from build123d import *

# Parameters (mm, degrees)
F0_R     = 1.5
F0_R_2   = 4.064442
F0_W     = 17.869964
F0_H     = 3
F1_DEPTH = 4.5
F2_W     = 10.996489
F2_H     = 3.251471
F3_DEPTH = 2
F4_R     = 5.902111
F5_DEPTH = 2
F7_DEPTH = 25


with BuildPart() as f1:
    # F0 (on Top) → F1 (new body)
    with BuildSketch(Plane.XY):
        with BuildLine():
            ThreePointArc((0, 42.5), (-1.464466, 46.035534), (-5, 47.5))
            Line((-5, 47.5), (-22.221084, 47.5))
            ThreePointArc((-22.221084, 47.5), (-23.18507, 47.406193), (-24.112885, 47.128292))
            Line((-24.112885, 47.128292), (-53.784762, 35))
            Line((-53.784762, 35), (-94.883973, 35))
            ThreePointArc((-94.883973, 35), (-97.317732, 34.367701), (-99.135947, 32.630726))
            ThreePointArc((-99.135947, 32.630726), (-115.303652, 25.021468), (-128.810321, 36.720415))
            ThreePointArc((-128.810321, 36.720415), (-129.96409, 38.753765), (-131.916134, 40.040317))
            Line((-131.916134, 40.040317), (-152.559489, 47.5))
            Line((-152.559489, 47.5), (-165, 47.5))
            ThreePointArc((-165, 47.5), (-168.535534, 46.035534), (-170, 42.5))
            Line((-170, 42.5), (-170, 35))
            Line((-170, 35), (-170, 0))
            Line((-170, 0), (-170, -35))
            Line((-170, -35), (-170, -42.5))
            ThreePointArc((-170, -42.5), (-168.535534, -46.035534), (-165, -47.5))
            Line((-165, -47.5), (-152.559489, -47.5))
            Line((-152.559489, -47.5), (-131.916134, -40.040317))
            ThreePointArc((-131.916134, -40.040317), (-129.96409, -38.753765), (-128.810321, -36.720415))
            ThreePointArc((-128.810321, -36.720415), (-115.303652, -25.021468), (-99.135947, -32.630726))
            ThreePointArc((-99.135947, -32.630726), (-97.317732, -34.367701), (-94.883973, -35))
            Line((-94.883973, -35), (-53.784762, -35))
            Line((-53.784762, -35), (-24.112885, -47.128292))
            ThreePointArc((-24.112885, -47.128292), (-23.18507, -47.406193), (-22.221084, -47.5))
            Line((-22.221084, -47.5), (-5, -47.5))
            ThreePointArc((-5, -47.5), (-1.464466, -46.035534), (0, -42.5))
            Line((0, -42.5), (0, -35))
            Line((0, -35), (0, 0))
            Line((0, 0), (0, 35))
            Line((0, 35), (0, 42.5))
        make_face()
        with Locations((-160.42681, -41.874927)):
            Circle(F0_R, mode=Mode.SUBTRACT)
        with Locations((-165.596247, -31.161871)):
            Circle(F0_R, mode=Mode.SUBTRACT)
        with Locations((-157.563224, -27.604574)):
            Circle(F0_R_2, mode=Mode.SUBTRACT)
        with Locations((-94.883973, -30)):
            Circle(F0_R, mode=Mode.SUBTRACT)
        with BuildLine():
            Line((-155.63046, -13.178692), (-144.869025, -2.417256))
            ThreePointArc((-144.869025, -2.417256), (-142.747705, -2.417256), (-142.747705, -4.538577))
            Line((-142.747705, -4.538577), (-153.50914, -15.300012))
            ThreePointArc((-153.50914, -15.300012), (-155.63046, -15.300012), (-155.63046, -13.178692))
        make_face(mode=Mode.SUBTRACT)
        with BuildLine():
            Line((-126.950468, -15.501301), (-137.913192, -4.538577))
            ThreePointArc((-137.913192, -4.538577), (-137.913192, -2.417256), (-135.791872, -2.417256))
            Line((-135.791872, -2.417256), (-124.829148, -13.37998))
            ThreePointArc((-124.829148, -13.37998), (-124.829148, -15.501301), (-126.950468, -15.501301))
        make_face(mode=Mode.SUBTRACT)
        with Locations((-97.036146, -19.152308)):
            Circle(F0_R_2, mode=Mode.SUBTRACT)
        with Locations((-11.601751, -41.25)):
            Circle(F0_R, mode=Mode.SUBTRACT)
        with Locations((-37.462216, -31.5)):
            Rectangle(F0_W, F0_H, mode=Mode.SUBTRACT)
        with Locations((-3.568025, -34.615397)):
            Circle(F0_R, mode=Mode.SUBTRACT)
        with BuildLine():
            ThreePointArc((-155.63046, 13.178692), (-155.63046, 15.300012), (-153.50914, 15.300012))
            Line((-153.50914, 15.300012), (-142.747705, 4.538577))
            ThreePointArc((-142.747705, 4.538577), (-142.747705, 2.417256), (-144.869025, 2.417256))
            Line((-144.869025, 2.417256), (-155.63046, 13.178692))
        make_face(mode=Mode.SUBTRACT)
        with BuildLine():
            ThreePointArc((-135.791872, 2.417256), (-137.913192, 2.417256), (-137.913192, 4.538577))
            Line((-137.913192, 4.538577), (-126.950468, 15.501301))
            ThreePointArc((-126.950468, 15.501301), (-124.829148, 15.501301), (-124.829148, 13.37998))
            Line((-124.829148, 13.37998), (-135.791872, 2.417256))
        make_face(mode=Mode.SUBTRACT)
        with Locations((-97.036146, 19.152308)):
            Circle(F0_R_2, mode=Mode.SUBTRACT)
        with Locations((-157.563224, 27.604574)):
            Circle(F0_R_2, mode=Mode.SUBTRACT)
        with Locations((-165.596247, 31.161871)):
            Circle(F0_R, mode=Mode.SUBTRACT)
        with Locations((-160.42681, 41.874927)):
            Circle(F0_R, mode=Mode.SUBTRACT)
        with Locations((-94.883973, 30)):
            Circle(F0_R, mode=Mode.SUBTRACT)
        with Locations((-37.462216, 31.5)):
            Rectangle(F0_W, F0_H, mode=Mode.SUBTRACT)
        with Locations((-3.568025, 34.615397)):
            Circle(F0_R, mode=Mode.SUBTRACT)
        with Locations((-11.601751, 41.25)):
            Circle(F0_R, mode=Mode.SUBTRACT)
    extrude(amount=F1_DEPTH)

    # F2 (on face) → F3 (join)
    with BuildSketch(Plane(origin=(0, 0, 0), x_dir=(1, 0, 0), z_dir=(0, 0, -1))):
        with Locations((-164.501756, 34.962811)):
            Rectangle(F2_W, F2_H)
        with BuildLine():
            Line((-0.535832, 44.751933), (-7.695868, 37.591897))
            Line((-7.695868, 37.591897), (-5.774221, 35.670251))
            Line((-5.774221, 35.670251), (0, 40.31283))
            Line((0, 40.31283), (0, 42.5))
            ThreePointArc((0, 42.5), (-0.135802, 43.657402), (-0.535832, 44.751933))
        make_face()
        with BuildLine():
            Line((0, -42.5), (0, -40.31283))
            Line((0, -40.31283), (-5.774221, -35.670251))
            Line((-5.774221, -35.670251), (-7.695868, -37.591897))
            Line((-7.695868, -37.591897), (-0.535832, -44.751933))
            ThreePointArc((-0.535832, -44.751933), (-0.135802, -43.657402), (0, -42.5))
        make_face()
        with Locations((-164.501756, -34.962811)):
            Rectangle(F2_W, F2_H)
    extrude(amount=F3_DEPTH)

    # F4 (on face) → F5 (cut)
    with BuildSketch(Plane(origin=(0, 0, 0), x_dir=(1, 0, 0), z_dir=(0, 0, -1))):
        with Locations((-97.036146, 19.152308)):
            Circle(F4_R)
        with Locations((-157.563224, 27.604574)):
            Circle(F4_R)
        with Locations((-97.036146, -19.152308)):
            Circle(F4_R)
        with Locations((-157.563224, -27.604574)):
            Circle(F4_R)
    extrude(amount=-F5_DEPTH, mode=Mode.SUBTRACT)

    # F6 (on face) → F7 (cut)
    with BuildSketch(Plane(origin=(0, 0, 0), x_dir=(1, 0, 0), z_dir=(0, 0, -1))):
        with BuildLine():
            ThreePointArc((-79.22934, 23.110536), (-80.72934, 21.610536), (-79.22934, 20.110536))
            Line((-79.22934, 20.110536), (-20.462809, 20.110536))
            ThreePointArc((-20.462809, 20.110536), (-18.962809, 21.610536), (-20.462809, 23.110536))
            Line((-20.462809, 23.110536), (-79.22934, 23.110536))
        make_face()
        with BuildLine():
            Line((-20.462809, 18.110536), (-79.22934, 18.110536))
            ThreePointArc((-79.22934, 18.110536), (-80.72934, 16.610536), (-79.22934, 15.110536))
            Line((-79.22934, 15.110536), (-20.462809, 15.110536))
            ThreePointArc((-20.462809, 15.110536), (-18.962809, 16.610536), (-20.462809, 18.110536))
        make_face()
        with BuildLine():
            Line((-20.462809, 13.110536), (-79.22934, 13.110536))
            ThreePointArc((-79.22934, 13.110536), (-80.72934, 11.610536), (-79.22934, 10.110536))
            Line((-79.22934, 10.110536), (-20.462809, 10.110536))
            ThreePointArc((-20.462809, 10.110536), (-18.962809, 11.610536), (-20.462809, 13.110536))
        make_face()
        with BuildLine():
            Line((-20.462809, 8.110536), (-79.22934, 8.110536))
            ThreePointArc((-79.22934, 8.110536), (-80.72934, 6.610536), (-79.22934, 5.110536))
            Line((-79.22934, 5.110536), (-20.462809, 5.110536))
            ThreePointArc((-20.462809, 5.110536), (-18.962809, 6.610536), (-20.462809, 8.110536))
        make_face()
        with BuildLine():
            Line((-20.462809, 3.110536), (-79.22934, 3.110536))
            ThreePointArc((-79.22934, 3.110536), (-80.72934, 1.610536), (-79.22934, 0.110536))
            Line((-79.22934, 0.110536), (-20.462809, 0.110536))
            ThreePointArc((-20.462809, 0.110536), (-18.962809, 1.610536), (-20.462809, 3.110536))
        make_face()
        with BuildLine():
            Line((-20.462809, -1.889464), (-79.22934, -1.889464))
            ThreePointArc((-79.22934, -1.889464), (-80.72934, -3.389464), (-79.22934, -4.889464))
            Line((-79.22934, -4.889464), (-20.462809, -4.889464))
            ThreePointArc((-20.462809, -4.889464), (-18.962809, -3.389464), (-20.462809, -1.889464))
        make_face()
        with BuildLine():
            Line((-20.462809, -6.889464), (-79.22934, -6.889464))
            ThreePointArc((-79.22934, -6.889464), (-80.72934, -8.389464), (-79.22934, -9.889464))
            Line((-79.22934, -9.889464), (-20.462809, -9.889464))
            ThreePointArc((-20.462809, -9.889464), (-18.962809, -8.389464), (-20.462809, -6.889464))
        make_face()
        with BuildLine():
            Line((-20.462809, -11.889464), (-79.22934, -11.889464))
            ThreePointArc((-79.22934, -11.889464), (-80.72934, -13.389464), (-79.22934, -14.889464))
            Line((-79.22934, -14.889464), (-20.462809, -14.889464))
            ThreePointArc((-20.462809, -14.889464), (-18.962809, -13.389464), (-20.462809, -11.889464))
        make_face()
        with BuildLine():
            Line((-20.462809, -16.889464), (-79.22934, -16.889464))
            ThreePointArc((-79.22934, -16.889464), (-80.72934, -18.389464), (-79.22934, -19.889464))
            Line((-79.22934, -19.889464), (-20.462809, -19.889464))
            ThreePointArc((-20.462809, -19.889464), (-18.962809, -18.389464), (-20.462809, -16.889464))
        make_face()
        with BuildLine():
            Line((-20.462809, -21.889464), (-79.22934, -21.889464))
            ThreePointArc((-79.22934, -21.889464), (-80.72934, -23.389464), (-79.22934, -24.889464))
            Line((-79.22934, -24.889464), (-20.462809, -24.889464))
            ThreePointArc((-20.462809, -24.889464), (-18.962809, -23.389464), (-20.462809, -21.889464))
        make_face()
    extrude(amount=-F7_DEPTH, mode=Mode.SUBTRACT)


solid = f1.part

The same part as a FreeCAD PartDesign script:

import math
import FreeCAD as App
import Part
import Sketcher

V = App.Vector


def add_polygon(sketch, points):
    """Adds a closed chain of lines whose ends are joined by coincident constraints."""
    first, n = sketch.GeometryCount, len(points)
    for a, b in zip(points, points[1:] + points[:1]):
        sketch.addGeometry(Part.LineSegment(App.Vector(*a, 0), App.Vector(*b, 0)), False)
    for i in range(n):
        sketch.addConstraint(Sketcher.Constraint("Coincident", first + i, 2, first + (i + 1) % n, 1))

doc = App.newDocument("Part")
body = doc.addObject("PartDesign::Body", "Body")

sketch1 = doc.addObject("Sketcher::SketchObject", "Sketch")
body.addObject(sketch1)
sketch1.AttachmentSupport = (doc.XY_Plane, [""])
sketch1.MapMode = "FlatFace"
sketch1.addGeometry(Part.ArcOfCircle(Part.Circle(V(-5, 42.5, 0), V(0, 0, 1), 5), math.radians(0), math.radians(90)), False)
sketch1.addGeometry(Part.LineSegment(V(-5, 47.5, 0), V(-22.2, 47.5, 0)), False)
sketch1.addGeometry(Part.ArcOfCircle(Part.Circle(V(-22.2, 42.5, 0), V(0, 0, 1), 5), math.radians(90), math.radians(112)), False)
sketch1.addGeometry(Part.LineSegment(V(-24.1, 47.1, 0), V(-53.8, 35, 0)), False)
sketch1.addGeometry(Part.LineSegment(V(-53.8, 35, 0), V(-94.9, 35, 0)), False)
sketch1.addGeometry(Part.ArcOfCircle(Part.Circle(V(-94.9, 30, 0), V(0, 0, 1), 5), math.radians(90), math.radians(148)), False)
sketch1.addGeometry(Part.ArcOfCircle(Part.Circle(V(-113.1, 41.2, 0), V(0, 0, 1), 16.4), math.radians(-164), math.radians(-32)), False)
sketch1.addGeometry(Part.ArcOfCircle(Part.Circle(V(-133.6, 35.3, 0), V(0, 0, 1), 5), math.radians(16), math.radians(70)), False)
sketch1.addGeometry(Part.LineSegment(V(-131.9, 40, 0), V(-152.6, 47.5, 0)), False)
sketch1.addGeometry(Part.LineSegment(V(-152.6, 47.5, 0), V(-165, 47.5, 0)), False)
sketch1.addGeometry(Part.ArcOfCircle(Part.Circle(V(-165, 42.5, 0), V(0, 0, 1), 5), math.radians(90), math.radians(180)), False)
sketch1.addGeometry(Part.LineSegment(V(-170, 42.5, 0), V(-170, -42.5, 0)), False)
sketch1.addGeometry(Part.ArcOfCircle(Part.Circle(V(-165, -42.5, 0), V(0, 0, 1), 5), math.radians(180), math.radians(270)), False)
sketch1.addGeometry(Part.LineSegment(V(-165, -47.5, 0), V(-152.6, -47.5, 0)), False)
sketch1.addGeometry(Part.LineSegment(V(-152.6, -47.5, 0), V(-131.9, -40, 0)), False)
sketch1.addGeometry(Part.ArcOfCircle(Part.Circle(V(-133.6, -35.3, 0), V(0, 0, 1), 5), math.radians(-70), math.radians(-16)), False)
sketch1.addGeometry(Part.ArcOfCircle(Part.Circle(V(-113.1, -41.2, 0), V(0, 0, 1), 16.4), math.radians(32), math.radians(164)), False)
sketch1.addGeometry(Part.ArcOfCircle(Part.Circle(V(-94.9, -30, 0), V(0, 0, 1), 5), math.radians(-148), math.radians(-90)), False)
sketch1.addGeometry(Part.LineSegment(V(-94.9, -35, 0), V(-53.8, -35, 0)), False)
sketch1.addGeometry(Part.LineSegment(V(-53.8, -35, 0), V(-24.1, -47.1, 0)), False)
sketch1.addGeometry(Part.ArcOfCircle(Part.Circle(V(-22.2, -42.5, 0), V(0, 0, 1), 5), math.radians(-112), math.radians(-90)), False)
sketch1.addGeometry(Part.LineSegment(V(-22.2, -47.5, 0), V(-5, -47.5, 0)), False)
sketch1.addGeometry(Part.ArcOfCircle(Part.Circle(V(-5, -42.5, 0), V(0, 0, 1), 5), math.radians(-90), math.radians(0)), False)
sketch1.addGeometry(Part.LineSegment(V(0, -42.5, 0), V(0, 42.5, 0)), False)
sketch1.addGeometry(Part.Circle(V(-160.4, -41.9, 0), V(0, 0, 1), 1.5), False)
sketch1.addGeometry(Part.Circle(V(-165.6, -31.2, 0), V(0, 0, 1), 1.5), False)
sketch1.addGeometry(Part.Circle(V(-157.6, -27.6, 0), V(0, 0, 1), 4.1), False)
sketch1.addGeometry(Part.Circle(V(-94.9, -30, 0), V(0, 0, 1), 1.5), False)
sketch1.addGeometry(Part.ArcOfCircle(Part.Circle(V(-154.6, -14.2, 0), V(0, 0, 1), 1.5), math.radians(135), math.radians(315)), False)
sketch1.addGeometry(Part.LineSegment(V(-155.6, -13.2, 0), V(-144.9, -2.4, 0)), False)
sketch1.addGeometry(Part.ArcOfCircle(Part.Circle(V(-143.8, -3.5, 0), V(0, 0, 1), 1.5), math.radians(-45), math.radians(135)), False)
sketch1.addGeometry(Part.LineSegment(V(-142.7, -4.5, 0), V(-153.5, -15.3, 0)), False)
sketch1.addGeometry(Part.ArcOfCircle(Part.Circle(V(-125.9, -14.4, 0), V(0, 0, 1), 1.5), math.radians(-135), math.radians(45)), False)
sketch1.addGeometry(Part.LineSegment(V(-127, -15.5, 0), V(-137.9, -4.5, 0)), False)
sketch1.addGeometry(Part.ArcOfCircle(Part.Circle(V(-136.9, -3.5, 0), V(0, 0, 1), 1.5), math.radians(45), math.radians(225)), False)
sketch1.addGeometry(Part.LineSegment(V(-135.8, -2.4, 0), V(-124.8, -13.4, 0)), False)
sketch1.addGeometry(Part.Circle(V(-97, -19.2, 0), V(0, 0, 1), 4.1), False)
sketch1.addGeometry(Part.Circle(V(-11.6, -41.2, 0), V(0, 0, 1), 1.5), False)
sketch1.addGeometry(Part.Circle(V(-3.6, -34.6, 0), V(0, 0, 1), 1.5), False)
add_polygon(sketch1, [(-28.5, -33), (-46.4, -33), (-46.4, -30), (-28.5, -30)])
sketch1.addGeometry(Part.LineSegment(V(-144.9, 2.4, 0), V(-155.6, 13.2, 0)), False)
sketch1.addGeometry(Part.ArcOfCircle(Part.Circle(V(-154.6, 14.2, 0), V(0, 0, 1), 1.5), math.radians(45), math.radians(225)), False)
sketch1.addGeometry(Part.LineSegment(V(-153.5, 15.3, 0), V(-142.7, 4.5, 0)), False)
sketch1.addGeometry(Part.ArcOfCircle(Part.Circle(V(-143.8, 3.5, 0), V(0, 0, 1), 1.5), math.radians(-135), math.radians(45)), False)
sketch1.addGeometry(Part.LineSegment(V(-124.8, 13.4, 0), V(-135.8, 2.4, 0)), False)
sketch1.addGeometry(Part.ArcOfCircle(Part.Circle(V(-136.9, 3.5, 0), V(0, 0, 1), 1.5), math.radians(135), math.radians(315)), False)
sketch1.addGeometry(Part.LineSegment(V(-137.9, 4.5, 0), V(-127, 15.5, 0)), False)
sketch1.addGeometry(Part.ArcOfCircle(Part.Circle(V(-125.9, 14.4, 0), V(0, 0, 1), 1.5), math.radians(-45), math.radians(135)), False)
sketch1.addGeometry(Part.Circle(V(-97, 19.2, 0), V(0, 0, 1), 4.1), False)
sketch1.addGeometry(Part.Circle(V(-157.6, 27.6, 0), V(0, 0, 1), 4.1), False)
sketch1.addGeometry(Part.Circle(V(-165.6, 31.2, 0), V(0, 0, 1), 1.5), False)
sketch1.addGeometry(Part.Circle(V(-160.4, 41.9, 0), V(0, 0, 1), 1.5), False)
sketch1.addGeometry(Part.Circle(V(-94.9, 30, 0), V(0, 0, 1), 1.5), False)
add_polygon(sketch1, [(-28.5, 30), (-46.4, 30), (-46.4, 33), (-28.5, 33)])
sketch1.addGeometry(Part.Circle(V(-3.6, 34.6, 0), V(0, 0, 1), 1.5), False)
sketch1.addGeometry(Part.Circle(V(-11.6, 41.2, 0), V(0, 0, 1), 1.5), False)
sketch1.addConstraint([
    Sketcher.Constraint("Tangent", 0, 2, 1, 1),
    Sketcher.Constraint("Tangent", 1, 2, 2, 1),
    Sketcher.Constraint("Tangent", 2, 2, 3, 1),
    Sketcher.Constraint("Coincident", 3, 2, 4, 1),
    Sketcher.Constraint("Tangent", 4, 2, 5, 1),
    Sketcher.Constraint("Tangent", 5, 2, 6, 2),
    Sketcher.Constraint("Tangent", 6, 1, 7, 1),
    Sketcher.Constraint("Tangent", 7, 2, 8, 1),
    Sketcher.Constraint("Coincident", 8, 2, 9, 1),
    Sketcher.Constraint("Tangent", 9, 2, 10, 1),
    Sketcher.Constraint("Tangent", 10, 2, 11, 1),
    Sketcher.Constraint("Tangent", 11, 2, 12, 1),
    Sketcher.Constraint("Tangent", 12, 2, 13, 1),
    Sketcher.Constraint("Coincident", 13, 2, 14, 1),
    Sketcher.Constraint("Tangent", 14, 2, 15, 1),
    Sketcher.Constraint("Tangent", 15, 2, 16, 2),
    Sketcher.Constraint("Tangent", 16, 1, 17, 1),
    Sketcher.Constraint("Tangent", 17, 2, 18, 1),
    Sketcher.Constraint("Coincident", 18, 2, 19, 1),
    Sketcher.Constraint("Tangent", 19, 2, 20, 1),
    Sketcher.Constraint("Tangent", 20, 2, 21, 1),
    Sketcher.Constraint("Tangent", 21, 2, 22, 1),
    Sketcher.Constraint("Tangent", 22, 2, 23, 1),
    Sketcher.Constraint("Tangent", 23, 2, 0, 1),
    Sketcher.Constraint("Tangent", 28, 1, 29, 1),
    Sketcher.Constraint("Tangent", 29, 2, 30, 2),
    Sketcher.Constraint("Tangent", 30, 1, 31, 1),
    Sketcher.Constraint("Tangent", 31, 2, 28, 2),
    Sketcher.Constraint("Tangent", 32, 1, 33, 1),
    Sketcher.Constraint("Tangent", 33, 2, 34, 2),
    Sketcher.Constraint("Tangent", 34, 1, 35, 1),
    Sketcher.Constraint("Tangent", 35, 2, 32, 2),
    Sketcher.Constraint("Tangent", 43, 2, 44, 2),
    Sketcher.Constraint("Tangent", 44, 1, 45, 1),
    Sketcher.Constraint("Tangent", 45, 2, 46, 2),
    Sketcher.Constraint("Tangent", 46, 1, 43, 1),
    Sketcher.Constraint("Tangent", 47, 2, 48, 2),
    Sketcher.Constraint("Tangent", 48, 1, 49, 1),
    Sketcher.Constraint("Tangent", 49, 2, 50, 2),
    Sketcher.Constraint("Tangent", 50, 1, 47, 1),
    Sketcher.Constraint("Horizontal", 1),
    Sketcher.Constraint("Horizontal", 4),
    Sketcher.Constraint("Horizontal", 9),
    Sketcher.Constraint("Vertical", 11),
    Sketcher.Constraint("Horizontal", 13),
    Sketcher.Constraint("Horizontal", 18),
    Sketcher.Constraint("Horizontal", 21),
    Sketcher.Constraint("Vertical", 23),
    Sketcher.Constraint("Horizontal", 39),
    Sketcher.Constraint("Vertical", 40),
    Sketcher.Constraint("Horizontal", 41),
    Sketcher.Constraint("Vertical", 42),
    Sketcher.Constraint("Horizontal", 56),
    Sketcher.Constraint("Vertical", 57),
    Sketcher.Constraint("Horizontal", 58),
    Sketcher.Constraint("Vertical", 59),
    Sketcher.Constraint("Coincident", 27, 3, 17, 3),
    Sketcher.Constraint("Coincident", 55, 3, 5, 3),
    Sketcher.Constraint("Equal", 0, 2),
    Sketcher.Constraint("Equal", 5, 7),
    Sketcher.Constraint("Equal", 2, 10),
    Sketcher.Constraint("Equal", 10, 12),
    Sketcher.Constraint("Equal", 7, 15),
    Sketcher.Constraint("Equal", 6, 16),
    Sketcher.Constraint("Equal", 15, 17),
    Sketcher.Constraint("Equal", 12, 20),
    Sketcher.Constraint("Equal", 20, 22),
    Sketcher.Constraint("Equal", 24, 25),
    Sketcher.Constraint("Equal", 25, 27),
    Sketcher.Constraint("Equal", 27, 28),
    Sketcher.Constraint("Equal", 28, 30),
    Sketcher.Constraint("Equal", 30, 32),
    Sketcher.Constraint("Equal", 32, 34),
    Sketcher.Constraint("Equal", 26, 36),
    Sketcher.Constraint("Equal", 34, 37),
    Sketcher.Constraint("Equal", 37, 38),
    Sketcher.Constraint("Equal", 38, 44),
    Sketcher.Constraint("Equal", 44, 46),
    Sketcher.Constraint("Equal", 46, 48),
    Sketcher.Constraint("Equal", 48, 50),
    Sketcher.Constraint("Equal", 36, 51),
    Sketcher.Constraint("Equal", 51, 52),
    Sketcher.Constraint("Equal", 50, 53),
    Sketcher.Constraint("Equal", 53, 54),
    Sketcher.Constraint("Equal", 54, 55),
    Sketcher.Constraint("Equal", 55, 60),
    Sketcher.Constraint("Equal", 60, 61),
    Sketcher.Constraint("Symmetric", 22, 2, 23, 2, -1, 1),
    Sketcher.Constraint("Symmetric", 7, 3, 15, 3, -1),
    Sketcher.Constraint("Symmetric", 5, 3, 17, 3, -1),
    Sketcher.Constraint("Symmetric", 28, 3, 44, 3, -1),
    Sketcher.Constraint("Symmetric", 30, 3, 46, 3, -1),
    Sketcher.Constraint("Symmetric", 34, 3, 48, 3, -1),
    Sketcher.Constraint("Symmetric", 32, 3, 50, 3, -1),
    Sketcher.Constraint("Symmetric", 36, 3, 51, 3, -1),
    Sketcher.Constraint("Symmetric", 26, 3, 52, 3, -1),
    Sketcher.Constraint("Symmetric", 25, 3, 53, 3, -1),
    Sketcher.Constraint("Symmetric", 24, 3, 54, 3, -1),
    Sketcher.Constraint("Symmetric", 38, 3, 60, 3, -1),
    Sketcher.Constraint("Symmetric", 37, 3, 61, 3, -1),
    Sketcher.Constraint("Symmetric", 8, 2, 13, 2, -1),
    Sketcher.Constraint("Symmetric", 2, 2, 19, 2, -1),
    Sketcher.Constraint("Symmetric", 40, 2, 56, 2, -1),
    Sketcher.Constraint("Symmetric", 42, 2, 58, 2, -1),
    Sketcher.Constraint("Perpendicular", 31, 33),
    Sketcher.Constraint("Parallel", 35, 43),
    Sketcher.Constraint("Horizontal", 2, 3, 10, 3),
    Sketcher.Constraint("Horizontal", 30, 3, 34, 3),
    Sketcher.Constraint("Horizontal", 16, 3, 37, 3),
    Sketcher.Constraint("Horizontal", 27, 3, 40, 2),
    Sketcher.Constraint("Diameter", 24, 3.0),
    Sketcher.Constraint("Radius", 0, 5.0),
    Sketcher.Constraint("DistanceY", 11, 2, 11, 1, 85.0),
    Sketcher.Constraint("DistanceY", 40, 1, 40, 2, 3.0),
    Sketcher.Constraint("DistanceX", 10, 3, -1, 1, 165.0),
    Sketcher.Constraint("DistanceY", 27, 3, -1, 1, 30.0),
    Sketcher.Constraint("DistanceY", -1, 1, 3, 2, 35.0),
    Sketcher.Constraint("DistanceY", -1, 1, 6, 3, 41.249999),
    Sketcher.Constraint("Radius", 6, 16.381929),
    Sketcher.Constraint("Diameter", 26, 8.128884),
    Sketcher.Constraint("DistanceX", 4, 2, 4, 1, 41.099211),
    Sketcher.Constraint("DistanceX", 9, 2, 9, 1, 12.440511),
    Sketcher.Constraint("DistanceX", 28, 3, -1, 1, 154.5698),
    Sketcher.Constraint("DistanceY", 32, 1, -1, 1, 15.501301),
    Sketcher.Constraint("DistanceX", 39, 2, -1, 1, 46.397198),
    Sketcher.Constraint("Distance", 8, 21.949829),
    Sketcher.Constraint("Distance", 29, 15.218968),
    Sketcher.Constraint("DistanceX", 1, 2, 1, 1, 17.221084),
    Sketcher.Constraint("DistanceX", 39, 2, 39, 1, 17.869964),
    Sketcher.Constraint("DistanceX", 5, 3, -1, 1, 94.883971),
    Sketcher.Constraint("DistanceX", 24, 3, -1, 1, 160.42681),
    Sketcher.Constraint("DistanceY", 25, 3, -1, 1, 31.161871),
    Sketcher.Constraint("DistanceX", 32, 3, -1, 1, 125.889808),
    Sketcher.Constraint("DistanceX", 34, 3, -1, 1, 136.852532),
    Sketcher.Constraint("DistanceY", 36, 3, -1, 1, 19.152308),
    Sketcher.Constraint("DistanceX", 37, 3, -1, 1, 11.601751),
    Sketcher.Constraint("DistanceY", 24, 3, -1, 1, 41.874927),
    Sketcher.Constraint("DistanceX", 25, 3, -1, 1, 165.596247),
    Sketcher.Constraint("DistanceX", 26, 3, -1, 1, 157.563224),
    Sketcher.Constraint("DistanceY", 26, 3, -1, 1, 27.604574),
    Sketcher.Constraint("DistanceX", 36, 3, -1, 1, 97.036146),
    Sketcher.Constraint("DistanceX", 38, 3, -1, 1, 3.568025),
    Sketcher.Constraint("DistanceY", 38, 3, -1, 1, 34.615397),
])
pad1 = doc.addObject("PartDesign::Pad", "Pad")
body.addObject(pad1)
pad1.Profile = sketch1
pad1.Length = 4.5

sketch2 = doc.addObject("Sketcher::SketchObject", "Sketch001")
body.addObject(sketch2)
sketch2.AttachmentSupport = (doc.XY_Plane, [""])
sketch2.MapMode = "FlatFace"
add_polygon(sketch2, [(-170, -36.6), (-170, -33.3), (-159, -33.3), (-159, -36.6)])
sketch2.addGeometry(Part.LineSegment(V(-0.5, -44.8, 0), V(-7.7, -37.6, 0)), False)
sketch2.addGeometry(Part.LineSegment(V(-7.7, -37.6, 0), V(-5.8, -35.7, 0)), False)
sketch2.addGeometry(Part.LineSegment(V(-5.8, -35.7, 0), V(0, -40.3, 0)), False)
sketch2.addGeometry(Part.LineSegment(V(0, -40.3, 0), V(0, -42.5, 0)), False)
sketch2.addGeometry(Part.ArcOfCircle(Part.Circle(V(-5, -42.5, 0), V(0, 0, 1), 5), math.radians(-27), math.radians(0)), False)
sketch2.addGeometry(Part.LineSegment(V(0, 42.5, 0), V(0, 40.3, 0)), False)
sketch2.addGeometry(Part.LineSegment(V(0, 40.3, 0), V(-5.8, 35.7, 0)), False)
sketch2.addGeometry(Part.LineSegment(V(-5.8, 35.7, 0), V(-7.7, 37.6, 0)), False)
sketch2.addGeometry(Part.LineSegment(V(-7.7, 37.6, 0), V(-0.5, 44.8, 0)), False)
sketch2.addGeometry(Part.ArcOfCircle(Part.Circle(V(-5, 42.5, 0), V(0, 0, 1), 5), math.radians(0), math.radians(27)), False)
add_polygon(sketch2, [(-170, 33.3), (-170, 36.6), (-159, 36.6), (-159, 33.3)])
sketch2.addConstraint([
    Sketcher.Constraint("Coincident", 4, 2, 5, 1),
    Sketcher.Constraint("Coincident", 5, 2, 6, 1),
    Sketcher.Constraint("Coincident", 6, 2, 7, 1),
    Sketcher.Constraint("Tangent", 7, 2, 8, 2),
    Sketcher.Constraint("Coincident", 8, 1, 4, 1),
    Sketcher.Constraint("Coincident", 9, 2, 10, 1),
    Sketcher.Constraint("Coincident", 10, 2, 11, 1),
    Sketcher.Constraint("Coincident", 11, 2, 12, 1),
    Sketcher.Constraint("Coincident", 12, 2, 13, 2),
    Sketcher.Constraint("Tangent", 13, 1, 9, 1),
    Sketcher.Constraint("Vertical", 0),
    Sketcher.Constraint("Horizontal", 1),
    Sketcher.Constraint("Vertical", 2),
    Sketcher.Constraint("Horizontal", 3),
    Sketcher.Constraint("Vertical", 7),
    Sketcher.Constraint("Vertical", 9),
    Sketcher.Constraint("Vertical", 14),
    Sketcher.Constraint("Horizontal", 15),
    Sketcher.Constraint("Vertical", 16),
    Sketcher.Constraint("Horizontal", 17),
    Sketcher.Constraint("Equal", 8, 13),
    Sketcher.Constraint("Symmetric", 6, 2, 9, 2, -1, 1),
    Sketcher.Constraint("Symmetric", 8, 3, 13, 3, -1),
    Sketcher.Constraint("Symmetric", 5, 2, 10, 2, -1),
    Sketcher.Constraint("Symmetric", 4, 2, 11, 2, -1),
    Sketcher.Constraint("Symmetric", 3, 2, 14, 2, -1),
    Sketcher.Constraint("Symmetric", 1, 2, 16, 2, -1),
    Sketcher.Constraint("Perpendicular", 4, 5),
    Sketcher.Constraint("Perpendicular", 5, 11),
    Sketcher.Constraint("Perpendicular", 11, 12),
    Sketcher.Constraint("DistanceX", 0, 2, -1, 1, 170.0),
    Sketcher.Constraint("DistanceY", 7, 2, 13, 3, 85.000002),
    Sketcher.Constraint("Radius", 8, 4.999991),
    Sketcher.Constraint("DistanceX", 1, 1, 1, 2, 10.996489),
    Sketcher.Constraint("DistanceY", 0, 1, 0, 2, 3.251471),
    Sketcher.Constraint("DistanceY", 7, 2, 7, 1, 2.18717),
    Sketcher.Constraint("DistanceY", 4, 2, 13, 3, 80.091899),
    Sketcher.Constraint("DistanceY", 5, 2, 10, 2, 71.340502),
    Sketcher.Constraint("Distance", 4, 10.12582),
    Sketcher.Constraint("DistanceY", 2, 2, 13, 3, 79.088548),
])
pad2 = doc.addObject("PartDesign::Pad", "Pad001")
body.addObject(pad2)
pad2.Profile = sketch2
pad2.Length = 2
pad2.Reversed = True

sketch3 = doc.addObject("Sketcher::SketchObject", "Sketch002")
body.addObject(sketch3)
sketch3.AttachmentSupport = (doc.XY_Plane, [""])
sketch3.MapMode = "FlatFace"
sketch3.addGeometry([
    Part.Circle(V(-97, -19, 0), V(0, 0, 1), 6),
    Part.Circle(V(-158, -28, 0), V(0, 0, 1), 6),
    Part.Circle(V(-97, 19, 0), V(0, 0, 1), 6),
    Part.Circle(V(-158, 28, 0), V(0, 0, 1), 6),
], False)
sketch3.addConstraint([
    Sketcher.Constraint("Equal", 0, 1),
    Sketcher.Constraint("Equal", 1, 2),
    Sketcher.Constraint("Equal", 2, 3),
    Sketcher.Constraint("Symmetric", 0, 3, 2, 3, -1),
    Sketcher.Constraint("Symmetric", 1, 3, 3, 3, -1),
    Sketcher.Constraint("Diameter", 0, 11.804222),
    Sketcher.Constraint("DistanceY", 0, 3, -1, 1, 19.152308),
    Sketcher.Constraint("DistanceX", 0, 3, -1, 1, 97.036146),
    Sketcher.Constraint("DistanceX", 1, 3, -1, 1, 157.563224),
    Sketcher.Constraint("DistanceY", 1, 3, -1, 1, 27.604574),
])
pocket1 = doc.addObject("PartDesign::Pocket", "Pocket")
body.addObject(pocket1)
pocket1.Profile = sketch3
pocket1.Length = 2
pocket1.Reversed = True

sketch4 = doc.addObject("Sketcher::SketchObject", "Sketch003")
body.addObject(sketch4)
sketch4.AttachmentSupport = (doc.XY_Plane, [""])
sketch4.MapMode = "FlatFace"
sketch4.addGeometry([
    Part.ArcOfCircle(Part.Circle(V(-79.2, -21.6, 0), V(0, 0, 1), 1.5), math.radians(90), math.radians(270)),
    Part.LineSegment(V(-79.2, -20.1, 0), V(-20.5, -20.1, 0)),
    Part.ArcOfCircle(Part.Circle(V(-20.5, -21.6, 0), V(0, 0, 1), 1.5), math.radians(-90), math.radians(90)),
    Part.LineSegment(V(-20.5, -23.1, 0), V(-79.2, -23.1, 0)),
    Part.LineSegment(V(-20.5, -18.1, 0), V(-79.2, -18.1, 0)),
    Part.ArcOfCircle(Part.Circle(V(-79.2, -16.6, 0), V(0, 0, 1), 1.5), math.radians(90), math.radians(270)),
    Part.LineSegment(V(-79.2, -15.1, 0), V(-20.5, -15.1, 0)),
    Part.ArcOfCircle(Part.Circle(V(-20.5, -16.6, 0), V(0, 0, 1), 1.5), math.radians(-90), math.radians(90)),
    Part.LineSegment(V(-20.5, -13.1, 0), V(-79.2, -13.1, 0)),
    Part.ArcOfCircle(Part.Circle(V(-79.2, -11.6, 0), V(0, 0, 1), 1.5), math.radians(90), math.radians(270)),
    Part.LineSegment(V(-79.2, -10.1, 0), V(-20.5, -10.1, 0)),
    Part.ArcOfCircle(Part.Circle(V(-20.5, -11.6, 0), V(0, 0, 1), 1.5), math.radians(-90), math.radians(90)),
    Part.LineSegment(V(-20.5, -8.1, 0), V(-79.2, -8.1, 0)),
    Part.ArcOfCircle(Part.Circle(V(-79.2, -6.6, 0), V(0, 0, 1), 1.5), math.radians(90), math.radians(270)),
    Part.LineSegment(V(-79.2, -5.1, 0), V(-20.5, -5.1, 0)),
    Part.ArcOfCircle(Part.Circle(V(-20.5, -6.6, 0), V(0, 0, 1), 1.5), math.radians(-90), math.radians(90)),
    Part.LineSegment(V(-20.5, -3.1, 0), V(-79.2, -3.1, 0)),
    Part.ArcOfCircle(Part.Circle(V(-79.2, -1.6, 0), V(0, 0, 1), 1.5), math.radians(90), math.radians(270)),
    Part.LineSegment(V(-79.2, -0.1, 0), V(-20.5, -0.1, 0)),
    Part.ArcOfCircle(Part.Circle(V(-20.5, -1.6, 0), V(0, 0, 1), 1.5), math.radians(-90), math.radians(90)),
    Part.LineSegment(V(-20.5, 1.9, 0), V(-79.2, 1.9, 0)),
    Part.ArcOfCircle(Part.Circle(V(-79.2, 3.4, 0), V(0, 0, 1), 1.5), math.radians(90), math.radians(270)),
    Part.LineSegment(V(-79.2, 4.9, 0), V(-20.5, 4.9, 0)),
    Part.ArcOfCircle(Part.Circle(V(-20.5, 3.4, 0), V(0, 0, 1), 1.5), math.radians(-90), math.radians(90)),
    Part.LineSegment(V(-20.5, 6.9, 0), V(-79.2, 6.9, 0)),
    Part.ArcOfCircle(Part.Circle(V(-79.2, 8.4, 0), V(0, 0, 1), 1.5), math.radians(90), math.radians(270)),
    Part.LineSegment(V(-79.2, 9.9, 0), V(-20.5, 9.9, 0)),
    Part.ArcOfCircle(Part.Circle(V(-20.5, 8.4, 0), V(0, 0, 1), 1.5), math.radians(-90), math.radians(90)),
    Part.LineSegment(V(-20.5, 11.9, 0), V(-79.2, 11.9, 0)),
    Part.ArcOfCircle(Part.Circle(V(-79.2, 13.4, 0), V(0, 0, 1), 1.5), math.radians(90), math.radians(270)),
    Part.LineSegment(V(-79.2, 14.9, 0), V(-20.5, 14.9, 0)),
    Part.ArcOfCircle(Part.Circle(V(-20.5, 13.4, 0), V(0, 0, 1), 1.5), math.radians(-90), math.radians(90)),
    Part.LineSegment(V(-20.5, 16.9, 0), V(-79.2, 16.9, 0)),
    Part.ArcOfCircle(Part.Circle(V(-79.2, 18.4, 0), V(0, 0, 1), 1.5), math.radians(90), math.radians(270)),
    Part.LineSegment(V(-79.2, 19.9, 0), V(-20.5, 19.9, 0)),
    Part.ArcOfCircle(Part.Circle(V(-20.5, 18.4, 0), V(0, 0, 1), 1.5), math.radians(-90), math.radians(90)),
    Part.LineSegment(V(-20.5, 21.9, 0), V(-79.2, 21.9, 0)),
    Part.ArcOfCircle(Part.Circle(V(-79.2, 23.4, 0), V(0, 0, 1), 1.5), math.radians(90), math.radians(270)),
    Part.LineSegment(V(-79.2, 24.9, 0), V(-20.5, 24.9, 0)),
    Part.ArcOfCircle(Part.Circle(V(-20.5, 23.4, 0), V(0, 0, 1), 1.5), math.radians(-90), math.radians(90)),
], False)
sketch4.addConstraint([
    Sketcher.Constraint("Tangent", 0, 1, 1, 1),
    Sketcher.Constraint("Tangent", 1, 2, 2, 2),
    Sketcher.Constraint("Tangent", 2, 1, 3, 1),
    Sketcher.Constraint("Tangent", 3, 2, 0, 2),
    Sketcher.Constraint("Tangent", 4, 2, 5, 2),
    Sketcher.Constraint("Tangent", 5, 1, 6, 1),
    Sketcher.Constraint("Tangent", 6, 2, 7, 2),
    Sketcher.Constraint("Tangent", 7, 1, 4, 1),
    Sketcher.Constraint("Tangent", 8, 2, 9, 2),
    Sketcher.Constraint("Tangent", 9, 1, 10, 1),
    Sketcher.Constraint("Tangent", 10, 2, 11, 2),
    Sketcher.Constraint("Tangent", 11, 1, 8, 1),
    Sketcher.Constraint("Tangent", 12, 2, 13, 2),
    Sketcher.Constraint("Tangent", 13, 1, 14, 1),
    Sketcher.Constraint("Tangent", 14, 2, 15, 2),
    Sketcher.Constraint("Tangent", 15, 1, 12, 1),
    Sketcher.Constraint("Tangent", 16, 2, 17, 2),
    Sketcher.Constraint("Tangent", 17, 1, 18, 1),
    Sketcher.Constraint("Tangent", 18, 2, 19, 2),
    Sketcher.Constraint("Tangent", 19, 1, 16, 1),
    Sketcher.Constraint("Tangent", 20, 2, 21, 2),
    Sketcher.Constraint("Tangent", 21, 1, 22, 1),
    Sketcher.Constraint("Tangent", 22, 2, 23, 2),
    Sketcher.Constraint("Tangent", 23, 1, 20, 1),
    Sketcher.Constraint("Tangent", 24, 2, 25, 2),
    Sketcher.Constraint("Tangent", 25, 1, 26, 1),
    Sketcher.Constraint("Tangent", 26, 2, 27, 2),
    Sketcher.Constraint("Tangent", 27, 1, 24, 1),
    Sketcher.Constraint("Tangent", 28, 2, 29, 2),
    Sketcher.Constraint("Tangent", 29, 1, 30, 1),
    Sketcher.Constraint("Tangent", 30, 2, 31, 2),
    Sketcher.Constraint("Tangent", 31, 1, 28, 1),
    Sketcher.Constraint("Tangent", 32, 2, 33, 2),
    Sketcher.Constraint("Tangent", 33, 1, 34, 1),
    Sketcher.Constraint("Tangent", 34, 2, 35, 2),
    Sketcher.Constraint("Tangent", 35, 1, 32, 1),
    Sketcher.Constraint("Tangent", 36, 2, 37, 2),
    Sketcher.Constraint("Tangent", 37, 1, 38, 1),
    Sketcher.Constraint("Tangent", 38, 2, 39, 2),
    Sketcher.Constraint("Tangent", 39, 1, 36, 1),
    Sketcher.Constraint("Horizontal", 1),
    Sketcher.Constraint("Horizontal", 3),
    Sketcher.Constraint("Horizontal", 4),
    Sketcher.Constraint("Horizontal", 6),
    Sketcher.Constraint("Horizontal", 8),
    Sketcher.Constraint("Horizontal", 10),
    Sketcher.Constraint("Horizontal", 12),
    Sketcher.Constraint("Horizontal", 14),
    Sketcher.Constraint("Horizontal", 16),
    Sketcher.Constraint("Horizontal", 18),
    Sketcher.Constraint("Horizontal", 20),
    Sketcher.Constraint("Horizontal", 22),
    Sketcher.Constraint("Horizontal", 24),
    Sketcher.Constraint("Horizontal", 26),
    Sketcher.Constraint("Horizontal", 28),
    Sketcher.Constraint("Horizontal", 30),
    Sketcher.Constraint("Horizontal", 32),
    Sketcher.Constraint("Horizontal", 34),
    Sketcher.Constraint("Horizontal", 36),
    Sketcher.Constraint("Horizontal", 38),
    Sketcher.Constraint("Equal", 2, 5),
    Sketcher.Constraint("Equal", 7, 9),
    Sketcher.Constraint("Equal", 11, 13),
    Sketcher.Constraint("Equal", 15, 17),
    Sketcher.Constraint("Equal", 19, 21),
    Sketcher.Constraint("Equal", 23, 25),
    Sketcher.Constraint("Equal", 27, 29),
    Sketcher.Constraint("Equal", 31, 33),
    Sketcher.Constraint("Equal", 35, 37),
    Sketcher.Constraint("Vertical", 0, 3, 5, 3),
    Sketcher.Constraint("Vertical", 2, 3, 7, 3),
    Sketcher.Constraint("Vertical", 5, 3, 9, 3),
    Sketcher.Constraint("Vertical", 7, 3, 11, 3),
    Sketcher.Constraint("Vertical", 9, 3, 13, 3),
    Sketcher.Constraint("Vertical", 11, 3, 15, 3),
    Sketcher.Constraint("Vertical", 13, 3, 17, 3),
    Sketcher.Constraint("Vertical", 15, 3, 19, 3),
    Sketcher.Constraint("Vertical", 17, 3, 21, 3),
    Sketcher.Constraint("Vertical", 19, 3, 23, 3),
    Sketcher.Constraint("Vertical", 21, 3, 25, 3),
    Sketcher.Constraint("Vertical", 23, 3, 27, 3),
    Sketcher.Constraint("Vertical", 25, 3, 29, 3),
    Sketcher.Constraint("Vertical", 27, 3, 31, 3),
    Sketcher.Constraint("Vertical", 29, 3, 33, 3),
    Sketcher.Constraint("Vertical", 31, 3, 35, 3),
    Sketcher.Constraint("Vertical", 33, 3, 37, 3),
    Sketcher.Constraint("Vertical", 35, 3, 39, 3),
    Sketcher.Constraint("Radius", 0, 1.5),
    Sketcher.Constraint("DistanceY", 0, 3, 5, 3, 5.0),
    Sketcher.Constraint("DistanceY", 5, 3, 9, 3, 5.0),
    Sketcher.Constraint("DistanceY", 9, 3, 13, 3, 5.0),
    Sketcher.Constraint("DistanceY", 13, 3, 17, 3, 5.0),
    Sketcher.Constraint("DistanceY", 17, 3, 21, 3, 5.0),
    Sketcher.Constraint("DistanceY", 21, 3, 25, 3, 5.0),
    Sketcher.Constraint("DistanceY", 25, 3, 29, 3, 5.0),
    Sketcher.Constraint("DistanceY", 29, 3, 33, 3, 5.0),
    Sketcher.Constraint("DistanceY", 33, 3, 37, 3, 5.0),
    Sketcher.Constraint("DistanceX", 1, 1, 1, 2, 58.766531),
    Sketcher.Constraint("DistanceX", 0, 3, -1, 1, 79.22934),
    Sketcher.Constraint("DistanceY", 0, 3, -1, 1, 21.610536),
])
pocket2 = doc.addObject("PartDesign::Pocket", "Pocket001")
body.addObject(pocket2)
pocket2.Profile = sketch4
pocket2.Length = 25
pocket2.Reversed = True

doc.recompute()
